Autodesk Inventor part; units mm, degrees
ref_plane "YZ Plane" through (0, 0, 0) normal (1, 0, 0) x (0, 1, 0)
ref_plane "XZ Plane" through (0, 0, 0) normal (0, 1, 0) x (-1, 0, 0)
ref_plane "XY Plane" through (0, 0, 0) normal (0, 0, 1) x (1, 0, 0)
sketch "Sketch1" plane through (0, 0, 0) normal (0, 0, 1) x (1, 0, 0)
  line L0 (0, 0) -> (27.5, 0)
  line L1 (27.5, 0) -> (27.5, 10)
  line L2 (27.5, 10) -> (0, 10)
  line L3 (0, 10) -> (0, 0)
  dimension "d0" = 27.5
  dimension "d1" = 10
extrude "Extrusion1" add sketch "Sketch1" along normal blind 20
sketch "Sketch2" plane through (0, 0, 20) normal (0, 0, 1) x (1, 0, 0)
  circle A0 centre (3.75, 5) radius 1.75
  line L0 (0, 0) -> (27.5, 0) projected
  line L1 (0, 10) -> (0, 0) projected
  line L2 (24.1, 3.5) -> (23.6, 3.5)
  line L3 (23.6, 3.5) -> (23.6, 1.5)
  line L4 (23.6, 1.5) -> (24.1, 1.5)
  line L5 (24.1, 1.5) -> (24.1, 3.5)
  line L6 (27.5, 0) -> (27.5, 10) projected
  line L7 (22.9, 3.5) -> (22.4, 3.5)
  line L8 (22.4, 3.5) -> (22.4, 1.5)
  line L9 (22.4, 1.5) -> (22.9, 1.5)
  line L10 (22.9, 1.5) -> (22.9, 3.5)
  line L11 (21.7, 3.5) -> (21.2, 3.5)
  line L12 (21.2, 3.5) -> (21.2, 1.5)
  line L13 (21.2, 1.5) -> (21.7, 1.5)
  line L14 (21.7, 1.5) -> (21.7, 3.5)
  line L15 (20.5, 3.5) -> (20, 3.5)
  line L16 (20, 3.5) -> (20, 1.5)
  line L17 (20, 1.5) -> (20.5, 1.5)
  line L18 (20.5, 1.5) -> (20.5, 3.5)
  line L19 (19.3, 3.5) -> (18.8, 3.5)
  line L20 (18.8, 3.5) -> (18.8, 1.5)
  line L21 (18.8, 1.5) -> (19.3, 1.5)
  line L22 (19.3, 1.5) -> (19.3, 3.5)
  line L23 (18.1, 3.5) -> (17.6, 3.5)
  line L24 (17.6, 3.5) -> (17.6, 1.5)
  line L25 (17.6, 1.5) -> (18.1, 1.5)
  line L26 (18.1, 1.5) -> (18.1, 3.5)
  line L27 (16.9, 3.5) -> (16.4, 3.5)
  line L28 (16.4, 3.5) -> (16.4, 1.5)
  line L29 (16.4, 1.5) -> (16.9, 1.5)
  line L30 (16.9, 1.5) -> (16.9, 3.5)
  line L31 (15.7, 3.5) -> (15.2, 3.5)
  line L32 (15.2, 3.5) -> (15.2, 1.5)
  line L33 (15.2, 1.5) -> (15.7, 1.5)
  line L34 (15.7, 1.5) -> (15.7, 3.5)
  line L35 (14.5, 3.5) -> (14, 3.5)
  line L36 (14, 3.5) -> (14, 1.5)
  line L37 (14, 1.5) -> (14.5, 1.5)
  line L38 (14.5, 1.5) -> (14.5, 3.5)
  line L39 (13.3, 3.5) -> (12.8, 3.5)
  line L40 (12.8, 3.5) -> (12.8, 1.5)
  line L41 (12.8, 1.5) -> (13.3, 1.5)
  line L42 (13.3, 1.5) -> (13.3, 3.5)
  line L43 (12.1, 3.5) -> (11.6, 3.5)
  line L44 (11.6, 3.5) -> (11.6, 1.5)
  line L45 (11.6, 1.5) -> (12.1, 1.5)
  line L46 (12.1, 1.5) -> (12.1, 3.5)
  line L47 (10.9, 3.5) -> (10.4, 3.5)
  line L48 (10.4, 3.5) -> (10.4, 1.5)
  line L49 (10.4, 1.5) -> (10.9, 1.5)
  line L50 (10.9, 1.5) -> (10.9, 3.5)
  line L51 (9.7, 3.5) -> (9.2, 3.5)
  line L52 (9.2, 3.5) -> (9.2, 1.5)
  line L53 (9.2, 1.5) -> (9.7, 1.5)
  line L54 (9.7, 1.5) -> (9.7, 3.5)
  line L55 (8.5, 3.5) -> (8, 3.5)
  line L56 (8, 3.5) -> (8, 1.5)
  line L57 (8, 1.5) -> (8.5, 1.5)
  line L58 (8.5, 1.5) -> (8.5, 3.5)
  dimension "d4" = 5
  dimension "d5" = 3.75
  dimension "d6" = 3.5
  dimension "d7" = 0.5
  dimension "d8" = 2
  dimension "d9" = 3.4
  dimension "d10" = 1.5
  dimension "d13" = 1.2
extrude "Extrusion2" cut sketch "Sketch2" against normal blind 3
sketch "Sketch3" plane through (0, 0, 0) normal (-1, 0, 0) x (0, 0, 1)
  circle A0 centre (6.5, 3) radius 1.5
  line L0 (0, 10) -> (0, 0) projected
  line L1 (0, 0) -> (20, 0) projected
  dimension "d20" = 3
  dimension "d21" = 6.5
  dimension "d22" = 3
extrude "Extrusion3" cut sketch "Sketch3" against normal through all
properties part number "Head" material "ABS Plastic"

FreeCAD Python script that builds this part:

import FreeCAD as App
import Part
import Sketcher

V = App.Vector

doc = App.newDocument("Part")
body = doc.addObject("PartDesign::Body", "Body")

# Sketch on XY plane
sketch1 = doc.addObject("Sketcher::SketchObject", "Sketch")
body.addObject(sketch1)
sketch1.AttachmentSupport = (doc.XY_Plane, [""])
sketch1.MapMode = "FlatFace"
sketch1.addGeometry([
    Part.LineSegment(V(0, 10, 0), V(0, 0, 0)),
    Part.LineSegment(V(0, 0, 0), V(27.5, 0, 0)),
    Part.LineSegment(V(27.5, 0, 0), V(27.5, 10, 0)),
    Part.LineSegment(V(27.5, 10, 0), V(0, 10, 0)),
], False)
sketch1.addConstraint([
    Sketcher.Constraint("Coincident", 0, 2, 1, 1),
    Sketcher.Constraint("Coincident", 1, 2, 2, 1),
    Sketcher.Constraint("Coincident", 2, 2, 3, 1),
    Sketcher.Constraint("Coincident", 3, 2, 0, 1),
    Sketcher.Constraint("Vertical", 0),
    Sketcher.Constraint("Horizontal", 1),
    Sketcher.Constraint("Vertical", 2),
    Sketcher.Constraint("Horizontal", 3),
    Sketcher.Constraint("Coincident", 0, 2, -1, 1),
    Sketcher.Constraint("DistanceY", 0, 2, 0, 1, 10.0),
    Sketcher.Constraint("DistanceX", 1, 1, 1, 2, 27.5),
])
pad1 = doc.addObject("PartDesign::Pad", "Pad")
body.addObject(pad1)
pad1.Profile = sketch1
pad1.Length = 20

# Sketch on XY plane
sketch2 = doc.addObject("Sketcher::SketchObject", "Sketch001")
body.addObject(sketch2)
sketch2.AttachmentSupport = (doc.XY_Plane, [""])
sketch2.MapMode = "FlatFace"
sketch2.AttachmentOffset = App.Placement(V(0, 0, 20), App.Rotation())
sketch2.addGeometry([
    Part.Circle(V(3.75, 5, 0), V(0, 0, 1), 1.75),  # 0
    Part.LineSegment(V(24.1, 1.5, 0), V(24.1, 3.5, 0)),  # 1
    Part.LineSegment(V(24.1, 3.5, 0), V(23.6, 3.5, 0)),  # 2
    Part.LineSegment(V(23.6, 3.5, 0), V(23.6, 1.5, 0)),  # 3
    Part.LineSegment(V(23.6, 1.5, 0), V(24.1, 1.5, 0)),  # 4
    Part.LineSegment(V(22.9, 1.5, 0), V(22.9, 3.5, 0)),  # 5
    Part.LineSegment(V(22.9, 3.5, 0), V(22.4, 3.5, 0)),  # 6
    Part.LineSegment(V(22.4, 3.5, 0), V(22.4, 1.5, 0)),  # 7
    Part.LineSegment(V(22.4, 1.5, 0), V(22.9, 1.5, 0)),  # 8
    Part.LineSegment(V(21.7, 1.5, 0), V(21.7, 3.5, 0)),  # 9
    Part.LineSegment(V(21.7, 3.5, 0), V(21.2, 3.5, 0)),  # 10
    Part.LineSegment(V(21.2, 3.5, 0), V(21.2, 1.5, 0)),  # 11
    Part.LineSegment(V(21.2, 1.5, 0), V(21.7, 1.5, 0)),  # 12
    Part.LineSegment(V(20.5, 1.5, 0), V(20.5, 3.5, 0)),  # 13
    Part.LineSegment(V(20.5, 3.5, 0), V(20, 3.5, 0)),  # 14
    Part.LineSegment(V(20, 3.5, 0), V(20, 1.5, 0)),  # 15
    Part.LineSegment(V(20, 1.5, 0), V(20.5, 1.5, 0)),  # 16
    Part.LineSegment(V(19.3, 1.5, 0), V(19.3, 3.5, 0)),  # 17
    Part.LineSegment(V(19.3, 3.5, 0), V(18.8, 3.5, 0)),  # 18
    Part.LineSegment(V(18.8, 3.5, 0), V(18.8, 1.5, 0)),  # 19
    Part.LineSegment(V(18.8, 1.5, 0), V(19.3, 1.5, 0)),  # 20
    Part.LineSegment(V(18.1, 1.5, 0), V(18.1, 3.5, 0)),  # 21
    Part.LineSegment(V(18.1, 3.5, 0), V(17.6, 3.5, 0)),  # 22
    Part.LineSegment(V(17.6, 3.5, 0), V(17.6, 1.5, 0)),  # 23
    Part.LineSegment(V(17.6, 1.5, 0), V(18.1, 1.5, 0)),  # 24
    Part.LineSegment(V(16.9, 1.5, 0), V(16.9, 3.5, 0)),  # 25
    Part.LineSegment(V(16.9, 3.5, 0), V(16.4, 3.5, 0)),  # 26
    Part.LineSegment(V(16.4, 3.5, 0), V(16.4, 1.5, 0)),  # 27
    Part.LineSegment(V(16.4, 1.5, 0), V(16.9, 1.5, 0)),  # 28
    Part.LineSegment(V(15.7, 1.5, 0), V(15.7, 3.5, 0)),  # 29
    Part.LineSegment(V(15.7, 3.5, 0), V(15.2, 3.5, 0)),  # 30
    Part.LineSegment(V(15.2, 3.5, 0), V(15.2, 1.5, 0)),  # 31
    Part.LineSegment(V(15.2, 1.5, 0), V(15.7, 1.5, 0)),  # 32
    Part.LineSegment(V(14.5, 1.5, 0), V(14.5, 3.5, 0)),  # 33
    Part.LineSegment(V(14.5, 3.5, 0), V(14, 3.5, 0)),  # 34
    Part.LineSegment(V(14, 3.5, 0), V(14, 1.5, 0)),  # 35
    Part.LineSegment(V(14, 1.5, 0), V(14.5, 1.5, 0)),  # 36
    Part.LineSegment(V(13.3, 1.5, 0), V(13.3, 3.5, 0)),  # 37
    Part.LineSegment(V(13.3, 3.5, 0), V(12.8, 3.5, 0)),  # 38
    Part.LineSegment(V(12.8, 3.5, 0), V(12.8, 1.5, 0)),  # 39
    Part.LineSegment(V(12.8, 1.5, 0), V(13.3, 1.5, 0)),  # 40
    Part.LineSegment(V(12.1, 1.5, 0), V(12.1, 3.5, 0)),  # 41
    Part.LineSegment(V(12.1, 3.5, 0), V(11.6, 3.5, 0)),  # 42
    Part.LineSegment(V(11.6, 3.5, 0), V(11.6, 1.5, 0)),  # 43
    Part.LineSegment(V(11.6, 1.5, 0), V(12.1, 1.5, 0)),  # 44
    Part.LineSegment(V(10.9, 1.5, 0), V(10.9, 3.5, 0)),  # 45
    Part.LineSegment(V(10.9, 3.5, 0), V(10.4, 3.5, 0)),  # 46
    Part.LineSegment(V(10.4, 3.5, 0), V(10.4, 1.5, 0)),  # 47
    Part.LineSegment(V(10.4, 1.5, 0), V(10.9, 1.5, 0)),  # 48
    Part.LineSegment(V(9.7, 1.5, 0), V(9.7, 3.5, 0)),  # 49
    Part.LineSegment(V(9.7, 3.5, 0), V(9.2, 3.5, 0)),  # 50
    Part.LineSegment(V(9.2, 3.5, 0), V(9.2, 1.5, 0)),  # 51
    Part.LineSegment(V(9.2, 1.5, 0), V(9.7, 1.5, 0)),  # 52
    Part.LineSegment(V(8.5, 1.5, 0), V(8.5, 3.5, 0)),  # 53
    Part.LineSegment(V(8.5, 3.5, 0), V(8, 3.5, 0)),  # 54
    Part.LineSegment(V(8, 3.5, 0), V(8, 1.5, 0)),  # 55
    Part.LineSegment(V(8, 1.5, 0), V(8.5, 1.5, 0)),  # 56
], False)
sketch2.addConstraint([
    Sketcher.Constraint("Coincident", 1, 2, 2, 1),
    Sketcher.Constraint("Coincident", 2, 2, 3, 1),
    Sketcher.Constraint("Coincident", 3, 2, 4, 1),
    Sketcher.Constraint("Coincident", 4, 2, 1, 1),
    Sketcher.Constraint("Coincident", 5, 2, 6, 1),
    Sketcher.Constraint("Coincident", 6, 2, 7, 1),
    Sketcher.Constraint("Coincident", 7, 2, 8, 1),
    Sketcher.Constraint("Coincident", 8, 2, 5, 1),
    Sketcher.Constraint("Coincident", 9, 2, 10, 1),
    Sketcher.Constraint("Coincident", 10, 2, 11, 1),
    Sketcher.Constraint("Coincident", 11, 2, 12, 1),
    Sketcher.Constraint("Coincident", 12, 2, 9, 1),
    Sketcher.Constraint("Coincident", 13, 2, 14, 1),
    Sketcher.Constraint("Coincident", 14, 2, 15, 1),
    Sketcher.Constraint("Coincident", 15, 2, 16, 1),
    Sketcher.Constraint("Coincident", 16, 2, 13, 1),
    Sketcher.Constraint("Coincident", 17, 2, 18, 1),
    Sketcher.Constraint("Coincident", 18, 2, 19, 1),
    Sketcher.Constraint("Coincident", 19, 2, 20, 1),
    Sketcher.Constraint("Coincident", 20, 2, 17, 1),
    Sketcher.Constraint("Coincident", 21, 2, 22, 1),
    Sketcher.Constraint("Coincident", 22, 2, 23, 1),
    Sketcher.Constraint("Coincident", 23, 2, 24, 1),
    Sketcher.Constraint("Coincident", 24, 2, 21, 1),
    Sketcher.Constraint("Coincident", 25, 2, 26, 1),
    Sketcher.Constraint("Coincident", 26, 2, 27, 1),
    Sketcher.Constraint("Coincident", 27, 2, 28, 1),
    Sketcher.Constraint("Coincident", 28, 2, 25, 1),
    Sketcher.Constraint("Coincident", 29, 2, 30, 1),
    Sketcher.Constraint("Coincident", 30, 2, 31, 1),
    Sketcher.Constraint("Coincident", 31, 2, 32, 1),
    Sketcher.Constraint("Coincident", 32, 2, 29, 1),
    Sketcher.Constraint("Coincident", 33, 2, 34, 1),
    Sketcher.Constraint("Coincident", 34, 2, 35, 1),
    Sketcher.Constraint("Coincident", 35, 2, 36, 1),
    Sketcher.Constraint("Coincident", 36, 2, 33, 1),
    Sketcher.Constraint("Coincident", 37, 2, 38, 1),
    Sketcher.Constraint("Coincident", 38, 2, 39, 1),
    Sketcher.Constraint("Coincident", 39, 2, 40, 1),
    Sketcher.Constraint("Coincident", 40, 2, 37, 1),
    Sketcher.Constraint("Coincident", 41, 2, 42, 1),
    Sketcher.Constraint("Coincident", 42, 2, 43, 1),
    Sketcher.Constraint("Coincident", 43, 2, 44, 1),
    Sketcher.Constraint("Coincident", 44, 2, 41, 1),
    Sketcher.Constraint("Coincident", 45, 2, 46, 1),
    Sketcher.Constraint("Coincident", 46, 2, 47, 1),
    Sketcher.Constraint("Coincident", 47, 2, 48, 1),
    Sketcher.Constraint("Coincident", 48, 2, 45, 1),
    Sketcher.Constraint("Coincident", 49, 2, 50, 1),
    Sketcher.Constraint("Coincident", 50, 2, 51, 1),
    Sketcher.Constraint("Coincident", 51, 2, 52, 1),
    Sketcher.Constraint("Coincident", 52, 2, 49, 1),
    Sketcher.Constraint("Coincident", 53, 2, 54, 1),
    Sketcher.Constraint("Coincident", 54, 2, 55, 1),
    Sketcher.Constraint("Coincident", 55, 2, 56, 1),
    Sketcher.Constraint("Coincident", 56, 2, 53, 1),
    Sketcher.Constraint("Vertical", 1),
    Sketcher.Constraint("Horizontal", 2),
    Sketcher.Constraint("Vertical", 3),
    Sketcher.Constraint("Horizontal", 4),
    Sketcher.Constraint("Vertical", 5),
    Sketcher.Constraint("Horizontal", 6),
    Sketcher.Constraint("Vertical", 7),
    Sketcher.Constraint("Horizontal", 8),
    Sketcher.Constraint("Vertical", 9),
    Sketcher.Constraint("Horizontal", 10),
    Sketcher.Constraint("Vertical", 11),
    Sketcher.Constraint("Horizontal", 12),
    Sketcher.Constraint("Vertical", 13),
    Sketcher.Constraint("Horizontal", 14),
    Sketcher.Constraint("Vertical", 15),
    Sketcher.Constraint("Horizontal", 16),
    Sketcher.Constraint("Vertical", 17),
    Sketcher.Constraint("Horizontal", 18),
    Sketcher.Constraint("Vertical", 19),
    Sketcher.Constraint("Horizontal", 20),
    Sketcher.Constraint("Vertical", 21),
    Sketcher.Constraint("Horizontal", 22),
    Sketcher.Constraint("Vertical", 23),
    Sketcher.Constraint("Horizontal", 24),
    Sketcher.Constraint("Vertical", 25),
    Sketcher.Constraint("Horizontal", 26),
    Sketcher.Constraint("Vertical", 27),
    Sketcher.Constraint("Horizontal", 28),
    Sketcher.Constraint("Vertical", 29),
    Sketcher.Constraint("Horizontal", 30),
    Sketcher.Constraint("Vertical", 31),
    Sketcher.Constraint("Horizontal", 32),
    Sketcher.Constraint("Vertical", 33),
    Sketcher.Constraint("Horizontal", 34),
    Sketcher.Constraint("Vertical", 35),
    Sketcher.Constraint("Horizontal", 36),
    Sketcher.Constraint("Vertical", 37),
    Sketcher.Constraint("Horizontal", 38),
    Sketcher.Constraint("Vertical", 39),
    Sketcher.Constraint("Horizontal", 40),
    Sketcher.Constraint("Vertical", 41),
    Sketcher.Constraint("Horizontal", 42),
    Sketcher.Constraint("Vertical", 43),
    Sketcher.Constraint("Horizontal", 44),
    Sketcher.Constraint("Vertical", 45),
    Sketcher.Constraint("Horizontal", 46),
    Sketcher.Constraint("Vertical", 47),
    Sketcher.Constraint("Horizontal", 48),
    Sketcher.Constraint("Vertical", 49),
    Sketcher.Constraint("Horizontal", 50),
    Sketcher.Constraint("Vertical", 51),
    Sketcher.Constraint("Horizontal", 52),
    Sketcher.Constraint("Vertical", 53),
    Sketcher.Constraint("Horizontal", 54),
    Sketcher.Constraint("Vertical", 55),
    Sketcher.Constraint("Horizontal", 56),
    Sketcher.Constraint("Horizontal", 2, 2, 5, 2),
    Sketcher.Constraint("Horizontal", 4, 2, 7, 2),
    Sketcher.Constraint("Horizontal", 6, 2, 9, 2),
    Sketcher.Constraint("Horizontal", 8, 2, 11, 2),
    Sketcher.Constraint("Horizontal", 10, 2, 13, 2),
    Sketcher.Constraint("Horizontal", 12, 2, 15, 2),
    Sketcher.Constraint("Horizontal", 14, 2, 17, 2),
    Sketcher.Constraint("Horizontal", 16, 2, 19, 2),
    Sketcher.Constraint("Horizontal", 18, 2, 21, 2),
    Sketcher.Constraint("Horizontal", 20, 2, 23, 2),
    Sketcher.Constraint("Horizontal", 22, 2, 25, 2),
    Sketcher.Constraint("Horizontal", 24, 2, 27, 2),
    Sketcher.Constraint("Horizontal", 26, 2, 29, 2),
    Sketcher.Constraint("Horizontal", 28, 2, 31, 2),
    Sketcher.Constraint("Horizontal", 30, 2, 33, 2),
    Sketcher.Constraint("Horizontal", 32, 2, 35, 2),
    Sketcher.Constraint("Horizontal", 34, 2, 37, 2),
    Sketcher.Constraint("Horizontal", 36, 2, 39, 2),
    Sketcher.Constraint("Horizontal", 38, 2, 41, 2),
    Sketcher.Constraint("Horizontal", 40, 2, 43, 2),
    Sketcher.Constraint("Horizontal", 42, 2, 45, 2),
    Sketcher.Constraint("Horizontal", 44, 2, 47, 2),
    Sketcher.Constraint("Horizontal", 46, 2, 49, 2),
    Sketcher.Constraint("Horizontal", 48, 2, 51, 2),
    Sketcher.Constraint("Horizontal", 50, 2, 53, 2),
    Sketcher.Constraint("Horizontal", 52, 2, 55, 2),
    Sketcher.Constraint("Equal", 4, 6),
    Sketcher.Constraint("Equal", 8, 10),
    Sketcher.Constraint("Equal", 12, 14),
    Sketcher.Constraint("Equal", 16, 18),
    Sketcher.Constraint("Equal", 20, 22),
    Sketcher.Constraint("Equal", 24, 26),
    Sketcher.Constraint("Equal", 28, 30),
    Sketcher.Constraint("Equal", 32, 34),
    Sketcher.Constraint("Equal", 36, 38),
    Sketcher.Constraint("Equal", 40, 42),
    Sketcher.Constraint("Equal", 44, 46),
    Sketcher.Constraint("Equal", 48, 50),
    Sketcher.Constraint("Equal", 52, 54),
    Sketcher.Constraint("Diameter", 0, 3.5),
    Sketcher.Constraint("DistanceY", 1, 1, 1, 2, 2.0),
    Sketcher.Constraint("DistanceX", 2, 2, 2, 1, 0.5),
    Sketcher.Constraint("DistanceY", -1, 1, 0, 3, 5.0),
    Sketcher.Constraint("DistanceY", -1, 1, 1, 2, 3.5),
    Sketcher.Constraint("DistanceX", 5, 2, 1, 2, 1.2),
    Sketcher.Constraint("DistanceX", 9, 2, 5, 2, 1.2),
    Sketcher.Constraint("DistanceX", 13, 2, 9, 2, 1.2),
    Sketcher.Constraint("DistanceX", 17, 2, 13, 2, 1.2),
    Sketcher.Constraint("DistanceX", 21, 2, 17, 2, 1.2),
    Sketcher.Constraint("DistanceX", 25, 2, 21, 2, 1.2),
    Sketcher.Constraint("DistanceX", 29, 2, 25, 2, 1.2),
    Sketcher.Constraint("DistanceX", 33, 2, 29, 2, 1.2),
    Sketcher.Constraint("DistanceX", 37, 2, 33, 2, 1.2),
    Sketcher.Constraint("DistanceX", 41, 2, 37, 2, 1.2),
    Sketcher.Constraint("DistanceX", 45, 2, 41, 2, 1.2),
    Sketcher.Constraint("DistanceX", 49, 2, 45, 2, 1.2),
    Sketcher.Constraint("DistanceX", 53, 2, 49, 2, 1.2),
    Sketcher.Constraint("DistanceX", -1, 1, 0, 3, 3.75),
    Sketcher.Constraint("DistanceX", -1, 1, 14, 2, 20.0),
])
pocket1 = doc.addObject("PartDesign::Pocket", "Pocket")
body.addObject(pocket1)
pocket1.Profile = sketch2
pocket1.Length = 3

# Sketch on YZ plane
sketch3 = doc.addObject("Sketcher::SketchObject", "Sketch002")
body.addObject(sketch3)
sketch3.AttachmentSupport = (doc.YZ_Plane, [""])
sketch3.MapMode = "FlatFace"
sketch3.addGeometry(Part.Circle(V(3, 6.5, 0), V(0, 0, 1), 1.5), False)
sketch3.addConstraint([
    Sketcher.Constraint("Diameter", 0, 3.0),
    Sketcher.Constraint("DistanceX", -1, 1, 0, 3, 3.0),
    Sketcher.Constraint("DistanceY", -1, 1, 0, 3, 6.5),
])
pocket2 = doc.addObject("PartDesign::Pocket", "Pocket001")
body.addObject(pocket2)
pocket2.Profile = sketch3
pocket2.Type = "ThroughAll"
pocket2.Reversed = True

doc.recompute()
